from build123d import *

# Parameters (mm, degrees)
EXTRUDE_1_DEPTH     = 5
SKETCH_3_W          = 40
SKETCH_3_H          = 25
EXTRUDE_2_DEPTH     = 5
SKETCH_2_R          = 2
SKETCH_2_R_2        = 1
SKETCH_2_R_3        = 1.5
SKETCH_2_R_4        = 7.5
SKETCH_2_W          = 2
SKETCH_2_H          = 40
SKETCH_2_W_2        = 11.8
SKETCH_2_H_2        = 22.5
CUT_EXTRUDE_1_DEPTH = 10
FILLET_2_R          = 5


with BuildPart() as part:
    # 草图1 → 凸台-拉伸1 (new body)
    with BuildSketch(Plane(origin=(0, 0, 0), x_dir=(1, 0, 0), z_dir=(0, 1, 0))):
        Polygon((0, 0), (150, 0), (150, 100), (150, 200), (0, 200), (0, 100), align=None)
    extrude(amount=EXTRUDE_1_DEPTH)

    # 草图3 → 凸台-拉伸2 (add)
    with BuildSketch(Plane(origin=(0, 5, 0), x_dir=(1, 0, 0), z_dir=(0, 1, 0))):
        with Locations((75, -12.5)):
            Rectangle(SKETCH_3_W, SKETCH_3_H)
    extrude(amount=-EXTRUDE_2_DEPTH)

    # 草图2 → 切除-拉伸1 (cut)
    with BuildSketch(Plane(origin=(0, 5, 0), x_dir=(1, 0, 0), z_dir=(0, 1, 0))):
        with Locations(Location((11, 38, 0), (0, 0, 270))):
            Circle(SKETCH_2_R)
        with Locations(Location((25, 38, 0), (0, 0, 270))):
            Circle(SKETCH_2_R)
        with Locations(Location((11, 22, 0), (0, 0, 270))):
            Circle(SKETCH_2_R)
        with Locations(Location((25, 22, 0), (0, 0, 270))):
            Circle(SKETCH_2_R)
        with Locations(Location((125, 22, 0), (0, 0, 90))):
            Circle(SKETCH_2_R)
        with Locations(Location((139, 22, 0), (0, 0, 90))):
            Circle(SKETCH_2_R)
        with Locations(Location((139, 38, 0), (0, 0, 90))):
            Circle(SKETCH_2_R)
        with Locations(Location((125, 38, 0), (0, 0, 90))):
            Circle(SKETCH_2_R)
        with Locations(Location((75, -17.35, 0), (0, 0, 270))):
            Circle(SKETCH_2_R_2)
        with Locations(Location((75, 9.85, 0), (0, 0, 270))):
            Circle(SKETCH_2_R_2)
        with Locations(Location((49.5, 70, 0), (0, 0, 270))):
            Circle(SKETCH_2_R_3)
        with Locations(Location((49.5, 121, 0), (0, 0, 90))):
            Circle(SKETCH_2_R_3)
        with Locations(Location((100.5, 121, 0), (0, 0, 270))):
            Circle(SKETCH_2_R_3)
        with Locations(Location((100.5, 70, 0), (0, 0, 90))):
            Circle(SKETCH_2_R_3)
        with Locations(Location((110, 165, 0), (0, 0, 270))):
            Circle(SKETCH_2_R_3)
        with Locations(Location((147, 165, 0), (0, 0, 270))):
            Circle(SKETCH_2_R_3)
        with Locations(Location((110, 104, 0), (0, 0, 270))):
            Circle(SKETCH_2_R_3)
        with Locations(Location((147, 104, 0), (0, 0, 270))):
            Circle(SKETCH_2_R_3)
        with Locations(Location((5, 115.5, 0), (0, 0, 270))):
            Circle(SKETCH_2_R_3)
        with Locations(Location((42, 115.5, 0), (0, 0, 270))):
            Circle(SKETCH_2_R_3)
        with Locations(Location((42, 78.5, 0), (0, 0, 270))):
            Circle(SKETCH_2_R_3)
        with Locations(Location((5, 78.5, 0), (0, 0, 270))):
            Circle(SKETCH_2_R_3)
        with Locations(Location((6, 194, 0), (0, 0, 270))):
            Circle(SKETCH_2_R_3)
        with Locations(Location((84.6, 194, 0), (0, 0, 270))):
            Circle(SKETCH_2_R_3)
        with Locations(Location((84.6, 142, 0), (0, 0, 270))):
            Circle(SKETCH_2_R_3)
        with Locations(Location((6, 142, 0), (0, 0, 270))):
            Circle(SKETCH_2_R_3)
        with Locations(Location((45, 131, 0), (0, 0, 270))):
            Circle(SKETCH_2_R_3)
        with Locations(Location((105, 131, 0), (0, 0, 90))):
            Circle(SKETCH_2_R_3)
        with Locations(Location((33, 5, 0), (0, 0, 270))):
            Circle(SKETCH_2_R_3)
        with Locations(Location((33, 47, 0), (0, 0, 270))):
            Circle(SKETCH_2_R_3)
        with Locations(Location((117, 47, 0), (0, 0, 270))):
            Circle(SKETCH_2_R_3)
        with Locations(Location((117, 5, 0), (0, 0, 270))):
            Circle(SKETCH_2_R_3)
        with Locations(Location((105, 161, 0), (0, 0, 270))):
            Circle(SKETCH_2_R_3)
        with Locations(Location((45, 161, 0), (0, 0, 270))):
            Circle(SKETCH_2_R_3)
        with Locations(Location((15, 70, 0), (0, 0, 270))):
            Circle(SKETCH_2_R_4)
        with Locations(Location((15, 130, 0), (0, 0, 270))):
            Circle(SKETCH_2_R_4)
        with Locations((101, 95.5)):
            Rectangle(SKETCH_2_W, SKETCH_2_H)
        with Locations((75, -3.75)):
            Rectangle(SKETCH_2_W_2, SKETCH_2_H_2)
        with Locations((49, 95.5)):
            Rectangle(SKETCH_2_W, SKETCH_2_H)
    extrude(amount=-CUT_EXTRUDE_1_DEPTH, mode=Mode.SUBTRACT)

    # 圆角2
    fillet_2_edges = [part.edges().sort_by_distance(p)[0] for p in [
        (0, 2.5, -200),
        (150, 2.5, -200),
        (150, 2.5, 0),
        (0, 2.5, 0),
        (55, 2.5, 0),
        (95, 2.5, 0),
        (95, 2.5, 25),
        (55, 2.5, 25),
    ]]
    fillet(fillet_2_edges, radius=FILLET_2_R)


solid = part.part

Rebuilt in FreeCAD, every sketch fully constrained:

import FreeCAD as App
import Part
import Sketcher

V = App.Vector
Q = App.Units.Quantity


def edges_at(feature, points):
    """Names of the edges that pass closest to the given points."""
    edges = feature.Shape.Edges
    near = lambda p: min(range(len(edges)), key=lambda i: edges[i].distToShape(Part.Vertex(*p))[0])
    return sorted({f"Edge{near(p) + 1}" for p in points})

doc = App.newDocument("Part")
body = doc.addObject("PartDesign::Body", "Body")

sketch1 = doc.addObject("Sketcher::SketchObject", "Sketch")
body.addObject(sketch1)
sketch1.AttachmentSupport = (doc.XZ_Plane, [""])
sketch1.MapMode = "FlatFace"
sketch1.addGeometry([
    Part.LineSegment(V(0, 0, 0), V(150, 0, 0)),
    Part.LineSegment(V(150, 0, 0), V(150, -200, 0)),
    Part.LineSegment(V(150, -200, 0), V(0, -200, 0)),
    Part.LineSegment(V(0, -200, 0), V(0, 0, 0)),
], False)
sketch1.addConstraint([
    Sketcher.Constraint("Coincident", 0, 2, 1, 1),
    Sketcher.Constraint("Coincident", 1, 2, 2, 1),
    Sketcher.Constraint("Coincident", 2, 2, 3, 1),
    Sketcher.Constraint("Coincident", 3, 2, 0, 1),
    Sketcher.Constraint("Horizontal", 0),
    Sketcher.Constraint("Vertical", 1),
    Sketcher.Constraint("Horizontal", 2),
    Sketcher.Constraint("Vertical", 3),
    Sketcher.Constraint("Coincident", 3, 2, -1, 1),
    Sketcher.Constraint("DistanceX", 0, 1, 0, 2, Q("150 mm")),
    Sketcher.Constraint("DistanceY", 1, 2, 1, 1, Q("200 mm")),
])
pad1 = doc.addObject("PartDesign::Pad", "Pad")
body.addObject(pad1)
pad1.Profile = sketch1
pad1.Length = 5
pad1.Reversed = True

sketch2 = doc.addObject("Sketcher::SketchObject", "Sketch001")
body.addObject(sketch2)
sketch2.AttachmentSupport = (doc.XZ_Plane, [""])
sketch2.MapMode = "FlatFace"
sketch2.AttachmentOffset = App.Placement(V(0, 0, -5), App.Rotation())
sketch2.addGeometry([
    Part.LineSegment(V(55, 0, 0), V(55, 25, 0)),
    Part.LineSegment(V(55, 25, 0), V(95, 25, 0)),
    Part.LineSegment(V(95, 25, 0), V(95, 0, 0)),
    Part.LineSegment(V(95, 0, 0), V(55, 0, 0)),
], False)
sketch2.addConstraint([
    Sketcher.Constraint("Coincident", 0, 2, 1, 1),
    Sketcher.Constraint("Coincident", 1, 2, 2, 1),
    Sketcher.Constraint("Coincident", 2, 2, 3, 1),
    Sketcher.Constraint("Coincident", 3, 2, 0, 1),
    Sketcher.Constraint("Vertical", 0),
    Sketcher.Constraint("Horizontal", 1),
    Sketcher.Constraint("Vertical", 2),
    Sketcher.Constraint("Horizontal", 3),
    Sketcher.Constraint("PointOnObject", 2, 2, -1),
    Sketcher.Constraint("DistanceX", 1, 1, 1, 2, Q("40 mm")),
    Sketcher.Constraint("DistanceY", 0, 1, 0, 2, Q("25 mm")),
    Sketcher.Constraint("DistanceX", -1, 1, 0, 2, Q("55 mm")),
])
pad2 = doc.addObject("PartDesign::Pad", "Pad001")
body.addObject(pad2)
pad2.Profile = sketch2
pad2.Length = 5

sketch3 = doc.addObject("Sketcher::SketchObject", "Sketch002")
body.addObject(sketch3)
sketch3.AttachmentSupport = (doc.XZ_Plane, [""])
sketch3.MapMode = "FlatFace"
sketch3.AttachmentOffset = App.Placement(V(0, 0, -5), App.Rotation())
sketch3.addGeometry([
    Part.Circle(V(11, -38, 0), V(0, 0, 1), 2),
    Part.Circle(V(25, -38, 0), V(0, 0, 1), 2),
    Part.Circle(V(11, -22, 0), V(0, 0, 1), 2),
    Part.Circle(V(25, -22, 0), V(0, 0, 1), 2),
    Part.Circle(V(125, -22, 0), V(0, 0, 1), 2),
    Part.Circle(V(139, -22, 0), V(0, 0, 1), 2),
    Part.Circle(V(139, -38, 0), V(0, 0, 1), 2),
    Part.Circle(V(125, -38, 0), V(0, 0, 1), 2),
    Part.Circle(V(75, 17.4, 0), V(0, 0, 1), 1),
    Part.Circle(V(75, -9.8, 0), V(0, 0, 1), 1),
    Part.Circle(V(49.5, -70, 0), V(0, 0, 1), 1.5),
    Part.Circle(V(49.5, -121, 0), V(0, 0, 1), 1.5),
    Part.Circle(V(100.5, -121, 0), V(0, 0, 1), 1.5),
    Part.Circle(V(100.5, -70, 0), V(0, 0, 1), 1.5),
    Part.Circle(V(110, -165, 0), V(0, 0, 1), 1.5),
    Part.Circle(V(147, -165, 0), V(0, 0, 1), 1.5),
    Part.Circle(V(110, -104, 0), V(0, 0, 1), 1.5),
    Part.Circle(V(147, -104, 0), V(0, 0, 1), 1.5),
    Part.Circle(V(5, -115.5, 0), V(0, 0, 1), 1.5),
    Part.Circle(V(42, -115.5, 0), V(0, 0, 1), 1.5),
    Part.Circle(V(42, -78.5, 0), V(0, 0, 1), 1.5),
    Part.Circle(V(5, -78.5, 0), V(0, 0, 1), 1.5),
    Part.Circle(V(6, -194, 0), V(0, 0, 1), 1.5),
    Part.Circle(V(84.6, -194, 0), V(0, 0, 1), 1.5),
    Part.Circle(V(84.6, -142, 0), V(0, 0, 1), 1.5),
    Part.Circle(V(6, -142, 0), V(0, 0, 1), 1.5),
    Part.Circle(V(45, -131, 0), V(0, 0, 1), 1.5),
    Part.Circle(V(105, -131, 0), V(0, 0, 1), 1.5),
    Part.Circle(V(33, -5, 0), V(0, 0, 1), 1.5),
    Part.Circle(V(33, -47, 0), V(0, 0, 1), 1.5),
    Part.Circle(V(117, -47, 0), V(0, 0, 1), 1.5),
    Part.Circle(V(117, -5, 0), V(0, 0, 1), 1.5),
    Part.Circle(V(105, -161, 0), V(0, 0, 1), 1.5),
    Part.Circle(V(45, -161, 0), V(0, 0, 1), 1.5),
    Part.Circle(V(15, -70, 0), V(0, 0, 1), 7.5),
    Part.Circle(V(15, -130, 0), V(0, 0, 1), 7.5),
    Part.LineSegment(V(100, -115.5, 0), V(100, -75.5, 0)),
    Part.LineSegment(V(100, -75.5, 0), V(102, -75.5, 0)),
    Part.LineSegment(V(102, -75.5, 0), V(102, -115.5, 0)),
    Part.LineSegment(V(102, -115.5, 0), V(100, -115.5, 0)),
    Part.LineSegment(V(69.1, -7.5, 0), V(69.1, 15, 0)),
    Part.LineSegment(V(69.1, 15, 0), V(80.9, 15, 0)),
    Part.LineSegment(V(80.9, 15, 0), V(80.9, -7.5, 0)),
    Part.LineSegment(V(80.9, -7.5, 0), V(69.1, -7.5, 0)),
    Part.LineSegment(V(48, -115.5, 0), V(48, -75.5, 0)),
    Part.LineSegment(V(48, -75.5, 0), V(50, -75.5, 0)),
    Part.LineSegment(V(50, -75.5, 0), V(50, -115.5, 0)),
    Part.LineSegment(V(50, -115.5, 0), V(48, -115.5, 0)),
], False)
sketch3.addConstraint([
    Sketcher.Constraint("Coincident", 36, 2, 37, 1),
    Sketcher.Constraint("Coincident", 37, 2, 38, 1),
    Sketcher.Constraint("Coincident", 38, 2, 39, 1),
    Sketcher.Constraint("Coincident", 39, 2, 36, 1),
    Sketcher.Constraint("Coincident", 40, 2, 41, 1),
    Sketcher.Constraint("Coincident", 41, 2, 42, 1),
    Sketcher.Constraint("Coincident", 42, 2, 43, 1),
    Sketcher.Constraint("Coincident", 43, 2, 40, 1),
    Sketcher.Constraint("Coincident", 44, 2, 45, 1),
    Sketcher.Constraint("Coincident", 45, 2, 46, 1),
    Sketcher.Constraint("Coincident", 46, 2, 47, 1),
    Sketcher.Constraint("Coincident", 47, 2, 44, 1),
    Sketcher.Constraint("Vertical", 36),
    Sketcher.Constraint("Horizontal", 37),
    Sketcher.Constraint("Vertical", 38),
    Sketcher.Constraint("Horizontal", 39),
    Sketcher.Constraint("Vertical", 40),
    Sketcher.Constraint("Horizontal", 41),
    Sketcher.Constraint("Vertical", 42),
    Sketcher.Constraint("Horizontal", 43),
    Sketcher.Constraint("Vertical", 44),
    Sketcher.Constraint("Horizontal", 45),
    Sketcher.Constraint("Vertical", 46),
    Sketcher.Constraint("Horizontal", 47),
    Sketcher.Constraint("Equal", 0, 1),
    Sketcher.Constraint("Equal", 1, 2),
    Sketcher.Constraint("Equal", 2, 3),
    Sketcher.Constraint("Equal", 3, 4),
    Sketcher.Constraint("Equal", 4, 5),
    Sketcher.Constraint("Equal", 5, 6),
    Sketcher.Constraint("Equal", 6, 7),
    Sketcher.Constraint("Equal", 8, 9),
    Sketcher.Constraint("Equal", 10, 11),
    Sketcher.Constraint("Equal", 11, 12),
    Sketcher.Constraint("Equal", 12, 13),
    Sketcher.Constraint("Equal", 13, 14),
    Sketcher.Constraint("Equal", 14, 15),
    Sketcher.Constraint("Equal", 15, 16),
    Sketcher.Constraint("Equal", 16, 17),
    Sketcher.Constraint("Equal", 17, 18),
    Sketcher.Constraint("Equal", 18, 19),
    Sketcher.Constraint("Equal", 19, 20),
    Sketcher.Constraint("Equal", 20, 21),
    Sketcher.Constraint("Equal", 21, 22),
    Sketcher.Constraint("Equal", 22, 23),
    Sketcher.Constraint("Equal", 23, 24),
    Sketcher.Constraint("Equal", 24, 25),
    Sketcher.Constraint("Equal", 25, 26),
    Sketcher.Constraint("Equal", 26, 27),
    Sketcher.Constraint("Equal", 27, 28),
    Sketcher.Constraint("Equal", 28, 29),
    Sketcher.Constraint("Equal", 29, 30),
    Sketcher.Constraint("Equal", 30, 31),
    Sketcher.Constraint("Equal", 31, 32),
    Sketcher.Constraint("Equal", 32, 33),
    Sketcher.Constraint("Equal", 34, 35),
    Sketcher.Constraint("Horizontal", 0, 3, 1, 3),
    Sketcher.Constraint("Horizontal", 2, 3, 3, 3),
    Sketcher.Constraint("Horizontal", 3, 3, 4, 3),
    Sketcher.Constraint("Horizontal", 4, 3, 5, 3),
    Sketcher.Constraint("Horizontal", 1, 3, 6, 3),
    Sketcher.Constraint("Horizontal", 6, 3, 7, 3),
    Sketcher.Constraint("Horizontal", 11, 3, 12, 3),
    Sketcher.Constraint("Horizontal", 10, 3, 13, 3),
    Sketcher.Constraint("Horizontal", 14, 3, 15, 3),
    Sketcher.Constraint("Horizontal", 16, 3, 17, 3),
    Sketcher.Constraint("Horizontal", 18, 3, 19, 3),
    Sketcher.Constraint("Horizontal", 20, 3, 21, 3),
    Sketcher.Constraint("Horizontal", 22, 3, 23, 3),
    Sketcher.Constraint("Horizontal", 24, 3, 25, 3),
    Sketcher.Constraint("Horizontal", 26, 3, 27, 3),
    Sketcher.Constraint("Horizontal", 29, 3, 30, 3),
    Sketcher.Constraint("Horizontal", 28, 3, 31, 3),
    Sketcher.Constraint("Horizontal", 32, 3, 33, 3),
    Sketcher.Constraint("Horizontal", 13, 3, 34, 3),
    Sketcher.Constraint("Horizontal", 19, 3, 38, 2),
    Sketcher.Constraint("Horizontal", 37, 2, 44, 2),
    Sketcher.Constraint("Horizontal", 39, 2, 46, 2),
    Sketcher.Constraint("Vertical", 0, 3, 2, 3),
    Sketcher.Constraint("Vertical", 1, 3, 3, 3),
    Sketcher.Constraint("Vertical", 5, 3, 6, 3),
    Sketcher.Constraint("Vertical", 4, 3, 7, 3),
    Sketcher.Constraint("Vertical", 8, 3, 9, 3),
    Sketcher.Constraint("Vertical", 10, 3, 11, 3),
    Sketcher.Constraint("Vertical", 12, 3, 13, 3),
    Sketcher.Constraint("Vertical", 14, 3, 16, 3),
    Sketcher.Constraint("Vertical", 15, 3, 17, 3),
    Sketcher.Constraint("Vertical", 19, 3, 20, 3),
    Sketcher.Constraint("Vertical", 18, 3, 21, 3),
    Sketcher.Constraint("Vertical", 23, 3, 24, 3),
    Sketcher.Constraint("Vertical", 22, 3, 25, 3),
    Sketcher.Constraint("Vertical", 28, 3, 29, 3),
    Sketcher.Constraint("Vertical", 30, 3, 31, 3),
    Sketcher.Constraint("Vertical", 27, 3, 32, 3),
    Sketcher.Constraint("Vertical", 26, 3, 33, 3),
    Sketcher.Constraint("Vertical", 34, 3, 35, 3),
    Sketcher.Constraint("Equal", 39, 45),
    Sketcher.Constraint("Diameter", 0, Q("4 mm")),
    Sketcher.Constraint("Diameter", 8, Q("2 mm")),
    Sketcher.Constraint("Diameter", 10, Q("3 mm")),
    Sketcher.Constraint("Diameter", 34, Q("15 mm")),
    Sketcher.Constraint("DistanceX", 37, 1, 37, 2, Q("2 mm")),
    Sketcher.Constraint("DistanceY", 36, 1, 36, 2, Q("40 mm")),
    Sketcher.Constraint("DistanceX", 41, 1, 41, 2, Q("11.8 mm")),
    Sketcher.Constraint("DistanceY", 40, 1, 40, 2, Q("22.5 mm")),
    Sketcher.Constraint("DistanceX", -1, 1, 0, 3, Q("11 mm")),
    Sketcher.Constraint("DistanceY", 0, 3, -1, 1, Q("38 mm")),
    Sketcher.Constraint("DistanceX", -1, 1, 1, 3, Q("25 mm")),
    Sketcher.Constraint("DistanceY", 2, 3, -1, 1, Q("22 mm")),
    Sketcher.Constraint("DistanceX", -1, 1, 4, 3, Q("125 mm")),
    Sketcher.Constraint("DistanceX", -1, 1, 5, 3, Q("139 mm")),
    Sketcher.Constraint("DistanceX", -1, 1, 8, 3, Q("75 mm")),
    Sketcher.Constraint("DistanceY", 10, 3, -1, 1, Q("70 mm")),
    Sketcher.Constraint("DistanceY", 11, 3, -1, 1, Q("121 mm")),
    Sketcher.Constraint("DistanceX", -1, 1, 14, 3, Q("110 mm")),
    Sketcher.Constraint("DistanceY", 14, 3, -1, 1, Q("165 mm")),
    Sketcher.Constraint("DistanceX", -1, 1, 15, 3, Q("147 mm")),
    Sketcher.Constraint("DistanceY", 16, 3, -1, 1, Q("104 mm")),
    Sketcher.Constraint("DistanceX", -1, 1, 18, 3, Q("5 mm")),
    Sketcher.Constraint("DistanceX", -1, 1, 19, 3, Q("42 mm")),
    Sketcher.Constraint("DistanceX", -1, 1, 22, 3, Q("6 mm")),
    Sketcher.Constraint("DistanceY", 22, 3, -1, 1, Q("194 mm")),
    Sketcher.Constraint("DistanceY", 24, 3, -1, 1, Q("142 mm")),
    Sketcher.Constraint("DistanceX", -1, 1, 26, 3, Q("45 mm")),
    Sketcher.Constraint("DistanceY", 26, 3, -1, 1, Q("131 mm")),
    Sketcher.Constraint("DistanceX", -1, 1, 27, 3, Q("105 mm")),
    Sketcher.Constraint("DistanceX", -1, 1, 28, 3, Q("33 mm")),
    Sketcher.Constraint("DistanceY", 28, 3, -1, 1, Q("5 mm")),
    Sketcher.Constraint("DistanceY", 29, 3, -1, 1, Q("47 mm")),
    Sketcher.Constraint("DistanceX", -1, 1, 30, 3, Q("117 mm")),
    Sketcher.Constraint("DistanceY", 32, 3, -1, 1, Q("161 mm")),
    Sketcher.Constraint("DistanceX", -1, 1, 34, 3, Q("15 mm")),
    Sketcher.Constraint("DistanceY", 35, 3, -1, 1, Q("130 mm")),
    Sketcher.Constraint("DistanceX", -1, 1, 36, 2, Q("100 mm")),
    Sketcher.Constraint("DistanceY", -1, 1, 40, 2, Q("15 mm")),
    Sketcher.Constraint("DistanceX", -1, 1, 44, 2, Q("48 mm")),
    Sketcher.Constraint("DistanceX", 11, 3, 12, 3, Q("51 mm")),
    Sketcher.Constraint("DistanceY", 19, 3, 20, 3, Q("37 mm")),
    Sketcher.Constraint("DistanceX", -1, 1, 10, 3, Q("49.5 mm")),
    Sketcher.Constraint("DistanceY", 18, 3, -1, 1, Q("115.5 mm")),
    Sketcher.Constraint("DistanceX", -1, 1, 23, 3, Q("84.6 mm")),
    Sketcher.Constraint("DistanceX", -1, 1, 40, 2, Q("69.1 mm")),
    Sketcher.Constraint("DistanceY", 9, 3, 8, 3, Q("27.2 mm")),
    Sketcher.Constraint("DistanceY", -1, 1, 8, 3, Q("17.35 mm")),
])
pocket1 = doc.addObject("PartDesign::Pocket", "Pocket")
body.addObject(pocket1)
pocket1.Profile = sketch3
pocket1.Length = 10
pocket1.Reversed = True
doc.recompute()

fillet = doc.addObject("PartDesign::Fillet", "Fillet")
body.addObject(fillet)
fillet.Base = (pocket1, edges_at(pocket1, [
    (0, 2.5, -200),
    (150, 2.5, -200),
    (150, 2.5, 0),
    (0, 2.5, 0),
    (55, 2.5, 0),
    (95, 2.5, 0),
    (95, 2.5, 25),
    (55, 2.5, 25),
]))
fillet.Radius = 5

doc.recompute()
